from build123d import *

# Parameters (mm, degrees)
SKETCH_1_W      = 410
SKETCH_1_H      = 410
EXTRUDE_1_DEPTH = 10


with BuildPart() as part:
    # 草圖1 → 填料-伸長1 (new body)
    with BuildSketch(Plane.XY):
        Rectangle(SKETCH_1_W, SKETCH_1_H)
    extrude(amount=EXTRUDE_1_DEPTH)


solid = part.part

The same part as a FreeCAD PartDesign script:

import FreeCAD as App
import Part
import Sketcher

doc = App.newDocument("Part")
body = doc.addObject("PartDesign::Body", "Body")

# Sketch on XY plane
sketch1 = body.newObject("Sketcher::SketchObject", "Sketch")
sketch1.AttachmentSupport = (doc.getObject("XY_Plane"), [""])
sketch1.MapMode = "FlatFace"
sketch1.addGeometry(Part.LineSegment(App.Vector(-205, 205, 0), App.Vector(-205, -205, 0)), False)
sketch1.addGeometry(Part.LineSegment(App.Vector(-205, -205, 0), App.Vector(205, -205, 0)), False)
sketch1.addGeometry(Part.LineSegment(App.Vector(205, -205, 0), App.Vector(205, 205, 0)), False)
sketch1.addGeometry(Part.LineSegment(App.Vector(205, 205, 0), App.Vector(-205, 205, 0)), False)
sketch1.addConstraint(Sketcher.Constraint("Coincident", 0, 2, 1, 1))
sketch1.addConstraint(Sketcher.Constraint("Coincident", 1, 2, 2, 1))
sketch1.addConstraint(Sketcher.Constraint("Coincident", 2, 2, 3, 1))
sketch1.addConstraint(Sketcher.Constraint("Coincident", 3, 2, 0, 1))
sketch1.addConstraint(Sketcher.Constraint("Vertical", 0))
sketch1.addConstraint(Sketcher.Constraint("Horizontal", 1))
sketch1.addConstraint(Sketcher.Constraint("Vertical", 2))
sketch1.addConstraint(Sketcher.Constraint("Horizontal", 3))
sketch1.addConstraint(Sketcher.Constraint("Symmetric", 0, 2, 2, 2, -1, 1))
sketch1.addConstraint(Sketcher.Constraint("Equal", 3, 0))
sketch1.addConstraint(Sketcher.Constraint("DistanceX", 1, 1, 1, 2, 410.0))
pad1 = body.newObject("PartDesign::Pad", "Pad")
pad1.Profile = sketch1
pad1.Length = 10

doc.recompute()
